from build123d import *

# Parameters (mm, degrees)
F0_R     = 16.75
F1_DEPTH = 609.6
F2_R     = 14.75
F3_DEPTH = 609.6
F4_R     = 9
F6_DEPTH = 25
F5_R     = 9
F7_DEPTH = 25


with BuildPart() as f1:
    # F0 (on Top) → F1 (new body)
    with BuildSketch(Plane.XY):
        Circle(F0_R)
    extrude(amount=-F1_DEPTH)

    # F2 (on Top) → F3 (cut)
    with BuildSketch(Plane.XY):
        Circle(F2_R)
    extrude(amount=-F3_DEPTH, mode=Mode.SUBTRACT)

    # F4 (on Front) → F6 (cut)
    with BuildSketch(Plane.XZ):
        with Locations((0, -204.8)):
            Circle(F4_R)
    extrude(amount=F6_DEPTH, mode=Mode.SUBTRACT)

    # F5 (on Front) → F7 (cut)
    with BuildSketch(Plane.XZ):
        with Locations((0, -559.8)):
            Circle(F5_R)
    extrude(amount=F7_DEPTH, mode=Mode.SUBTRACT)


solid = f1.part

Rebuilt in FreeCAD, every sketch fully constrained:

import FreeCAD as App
import Part
import Sketcher
Q = App.Units.Quantity

doc = App.newDocument("Part")
params = doc.addObject("Spreadsheet::Sheet", "Params")
for row, (alias, value) in enumerate([
    ("sketch1_diameter", "33.5 mm"),
    ("pad1_length", "609.6 mm"),
    ("sketch2_diameter", "29.5 mm"),
    ("pocket1_length", "609.6 mm"),
    ("sketch3_diameter", "18 mm"),
    ("pocket2_length", "25 mm"),
    ("sketch4_diameter", "18 mm"),
    ("pocket3_length", "25 mm"),
], start=1):
    params.set(f"A{row}", alias)
    params.set(f"B{row}", "=" + value)
    params.setAlias(f"B{row}", alias)

body = doc.addObject("PartDesign::Body", "Body")

# Sketch on XY plane
sketch1 = doc.addObject("Sketcher::SketchObject", "Sketch")
body.addObject(sketch1)
sketch1.AttachmentSupport = (doc.XY_Plane, [""])
sketch1.MapMode = "FlatFace"
sketch1.addGeometry(Part.Circle(App.Vector(0, 0, 0), App.Vector(0, 0, 1), 17), False)
sketch1.addConstraint([
    Sketcher.Constraint("Coincident", 0, 3, -1, 1),
    Sketcher.Constraint("Diameter", 0, Q("33.5 mm")),
])
sketch1.setExpression("Constraints[1]", "Params.sketch1_diameter")
pad1 = doc.addObject("PartDesign::Pad", "Pad")
body.addObject(pad1)
pad1.Profile = sketch1
pad1.setExpression("Length", "Params.pad1_length")
pad1.Reversed = True

# Sketch on XY plane
sketch2 = doc.addObject("Sketcher::SketchObject", "Sketch001")
body.addObject(sketch2)
sketch2.AttachmentSupport = (doc.XY_Plane, [""])
sketch2.MapMode = "FlatFace"
sketch2.addGeometry(Part.Circle(App.Vector(0, 0, 0), App.Vector(0, 0, 1), 15), False)
sketch2.addConstraint([
    Sketcher.Constraint("Coincident", 0, 3, -1, 1),
    Sketcher.Constraint("Diameter", 0, Q("29.5 mm")),
])
sketch2.setExpression("Constraints[1]", "Params.sketch2_diameter")
pocket1 = doc.addObject("PartDesign::Pocket", "Pocket")
body.addObject(pocket1)
pocket1.Profile = sketch2
pocket1.setExpression("Length", "Params.pocket1_length")

# Sketch on XZ plane
sketch3 = doc.addObject("Sketcher::SketchObject", "Sketch002")
body.addObject(sketch3)
sketch3.AttachmentSupport = (doc.XZ_Plane, [""])
sketch3.MapMode = "FlatFace"
sketch3.addGeometry(Part.Circle(App.Vector(0, -205, 0), App.Vector(0, 0, 1), 9), False)
sketch3.addConstraint([
    Sketcher.Constraint("PointOnObject", 0, 3, -2),
    Sketcher.Constraint("Diameter", 0, Q("18 mm")),
    Sketcher.Constraint("DistanceY", 0, 3, -1, 1, Q("204.8 mm")),
])
sketch3.setExpression("Constraints[1]", "Params.sketch3_diameter")
pocket2 = doc.addObject("PartDesign::Pocket", "Pocket001")
body.addObject(pocket2)
pocket2.Profile = sketch3
pocket2.setExpression("Length", "Params.pocket2_length")
pocket2.Reversed = True

# Sketch on XZ plane
sketch4 = doc.addObject("Sketcher::SketchObject", "Sketch003")
body.addObject(sketch4)
sketch4.AttachmentSupport = (doc.XZ_Plane, [""])
sketch4.MapMode = "FlatFace"
sketch4.addGeometry(Part.Circle(App.Vector(0, -560, 0), App.Vector(0, 0, 1), 9), False)
sketch4.addConstraint([
    Sketcher.Constraint("PointOnObject", 0, 3, -2),
    Sketcher.Constraint("Diameter", 0, Q("18 mm")),
    Sketcher.Constraint("DistanceY", 0, 3, -1, 1, Q("559.8 mm")),
])
sketch4.setExpression("Constraints[1]", "Params.sketch4_diameter")
pocket3 = doc.addObject("PartDesign::Pocket", "Pocket002")
body.addObject(pocket3)
pocket3.Profile = sketch4
pocket3.setExpression("Length", "Params.pocket3_length")
pocket3.Reversed = True

doc.recompute()
